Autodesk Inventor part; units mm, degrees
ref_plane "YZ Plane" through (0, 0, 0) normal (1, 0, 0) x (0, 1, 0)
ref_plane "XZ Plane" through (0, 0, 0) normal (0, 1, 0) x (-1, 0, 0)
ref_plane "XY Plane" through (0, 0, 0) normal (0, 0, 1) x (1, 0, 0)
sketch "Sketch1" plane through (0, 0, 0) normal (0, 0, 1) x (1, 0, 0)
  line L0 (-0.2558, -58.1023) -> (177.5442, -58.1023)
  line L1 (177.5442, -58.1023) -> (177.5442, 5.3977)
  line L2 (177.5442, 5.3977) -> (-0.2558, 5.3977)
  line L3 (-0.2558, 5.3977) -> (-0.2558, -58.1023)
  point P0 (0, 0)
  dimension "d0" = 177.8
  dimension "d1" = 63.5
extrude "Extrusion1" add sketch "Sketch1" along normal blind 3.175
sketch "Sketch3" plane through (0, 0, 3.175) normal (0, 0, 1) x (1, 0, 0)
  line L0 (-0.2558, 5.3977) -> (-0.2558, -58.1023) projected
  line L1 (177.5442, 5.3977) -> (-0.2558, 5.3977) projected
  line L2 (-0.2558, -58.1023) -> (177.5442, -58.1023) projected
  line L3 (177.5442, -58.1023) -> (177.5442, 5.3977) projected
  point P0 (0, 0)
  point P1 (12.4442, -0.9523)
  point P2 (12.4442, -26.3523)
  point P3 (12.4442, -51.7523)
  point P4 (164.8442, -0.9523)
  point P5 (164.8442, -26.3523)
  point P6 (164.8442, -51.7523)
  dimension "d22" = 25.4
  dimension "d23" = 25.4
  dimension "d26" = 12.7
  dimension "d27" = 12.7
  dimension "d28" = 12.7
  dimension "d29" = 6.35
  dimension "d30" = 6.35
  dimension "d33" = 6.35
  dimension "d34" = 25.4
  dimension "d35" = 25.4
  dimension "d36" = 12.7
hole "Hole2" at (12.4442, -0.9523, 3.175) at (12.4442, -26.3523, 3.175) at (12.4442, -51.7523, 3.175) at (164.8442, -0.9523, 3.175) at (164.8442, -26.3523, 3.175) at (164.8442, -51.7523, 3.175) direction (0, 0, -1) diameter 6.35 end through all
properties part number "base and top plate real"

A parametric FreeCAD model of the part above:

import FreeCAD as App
import Part
import Sketcher
Q = App.Units.Quantity


def add_polygon(sketch, points):
    """Adds a closed chain of lines whose ends are joined by coincident constraints."""
    first, n = sketch.GeometryCount, len(points)
    for a, b in zip(points, points[1:] + points[:1]):
        sketch.addGeometry(Part.LineSegment(App.Vector(*a, 0), App.Vector(*b, 0)), False)
    for i in range(n):
        sketch.addConstraint(Sketcher.Constraint("Coincident", first + i, 2, first + (i + 1) % n, 1))

doc = App.newDocument("Part")
params = doc.addObject("Spreadsheet::Sheet", "Params")
for row, (alias, value) in enumerate([
    ("sketch1_width", "7 in"),
    ("sketch1_height", "2.5 in"),
    ("pad1_length", "0.125 in"),
    ("sketch2_diameter", "0.25 in"),
    ("hole_diameter", "0.25 in"),
], start=1):
    params.set(f"A{row}", alias)
    params.set(f"B{row}", "=" + value)
    params.setAlias(f"B{row}", alias)

body = doc.addObject("PartDesign::Body", "Body")

# Sketch on XY plane
sketch1 = body.newObject("Sketcher::SketchObject", "Sketch")
sketch1.AttachmentSupport = (doc.getObject("XY_Plane"), [""])
sketch1.MapMode = "FlatFace"
add_polygon(sketch1, [(0, 5), (0, -58), (178, -58), (178, 5)])  # lines 0-3
sketch1.addConstraint([
    Sketcher.Constraint("Vertical", 0),
    Sketcher.Constraint("Horizontal", 1),
    Sketcher.Constraint("Vertical", 2),
    Sketcher.Constraint("Horizontal", 3),
    Sketcher.Constraint("DistanceX", 1, 1, 1, 2, Q("7 in")),
    Sketcher.Constraint("DistanceY", 0, 2, 0, 1, Q("2.5 in")),
    Sketcher.Constraint("DistanceY", 0, 2, -1, 1, Q("2.2875 in")),
    Sketcher.Constraint("DistanceX", 0, 2, -1, 1, 0.2558),
])
sketch1.setExpression("Constraints[8]", "Params.sketch1_width")
sketch1.setExpression("Constraints[9]", "Params.sketch1_height")
pad1 = body.newObject("PartDesign::Pad", "Pad")
pad1.Profile = sketch1
pad1.setExpression("Length", "Params.pad1_length")

# Sketch on XY plane
sketch2 = body.newObject("Sketcher::SketchObject", "Sketch001")
sketch2.AttachmentSupport = (doc.getObject("XY_Plane"), [""])
sketch2.MapMode = "FlatFace"
sketch2.AttachmentOffset = App.Placement(App.Vector(0, 0, 0.125 * 25.4), App.Rotation())
sketch2.addGeometry([
    Part.Circle(App.Vector(12.4, -1, 0), App.Vector(0, 0, 1), 3.2),  # 0
    Part.Circle(App.Vector(12.4, -26.4, 0), App.Vector(0, 0, 1), 3.2),  # 1
    Part.Circle(App.Vector(12.4, -51.8, 0), App.Vector(0, 0, 1), 3.2),  # 2
    Part.Circle(App.Vector(164.8, -1, 0), App.Vector(0, 0, 1), 3.2),  # 3
    Part.Circle(App.Vector(164.8, -26.4, 0), App.Vector(0, 0, 1), 3.2),  # 4
    Part.Circle(App.Vector(164.8, -51.8, 0), App.Vector(0, 0, 1), 3.2),  # 5
], False)
sketch2.addConstraint([
    Sketcher.Constraint("Equal", 0, 1),
    Sketcher.Constraint("Equal", 1, 2),
    Sketcher.Constraint("Equal", 2, 3),
    Sketcher.Constraint("Equal", 3, 4),
    Sketcher.Constraint("Equal", 4, 5),
    Sketcher.Constraint("Horizontal", 0, 3, 3, 3),
    Sketcher.Constraint("Horizontal", 1, 3, 4, 3),
    Sketcher.Constraint("Horizontal", 2, 3, 5, 3),
    Sketcher.Constraint("Vertical", 0, 3, 1, 3),
    Sketcher.Constraint("Vertical", 1, 3, 2, 3),
    Sketcher.Constraint("Vertical", 3, 3, 4, 3),
    Sketcher.Constraint("Vertical", 4, 3, 5, 3),
    Sketcher.Constraint("Diameter", 0, Q("0.25 in")),
    Sketcher.Constraint("DistanceY", 1, 3, 0, 3, Q("1 in")),
    Sketcher.Constraint("DistanceY", 2, 3, 1, 3, Q("1 in")),
    Sketcher.Constraint("DistanceX", 0, 3, 3, 3, Q("6 in")),
    Sketcher.Constraint("DistanceY", 0, 3, -1, 1, Q("0.0375 in")),
    Sketcher.Constraint("DistanceX", -1, 1, 0, 3, 12.4442),
])
sketch2.setExpression("Constraints[12]", "Params.sketch2_diameter")
doc.recompute()
hole = body.newObject("PartDesign::Hole", "Hole")
hole.Profile = sketch2
hole.ThreadType = "None"
hole.setExpression("Diameter", "Params.hole_diameter")
hole.DepthType = "ThroughAll"

doc.recompute()
